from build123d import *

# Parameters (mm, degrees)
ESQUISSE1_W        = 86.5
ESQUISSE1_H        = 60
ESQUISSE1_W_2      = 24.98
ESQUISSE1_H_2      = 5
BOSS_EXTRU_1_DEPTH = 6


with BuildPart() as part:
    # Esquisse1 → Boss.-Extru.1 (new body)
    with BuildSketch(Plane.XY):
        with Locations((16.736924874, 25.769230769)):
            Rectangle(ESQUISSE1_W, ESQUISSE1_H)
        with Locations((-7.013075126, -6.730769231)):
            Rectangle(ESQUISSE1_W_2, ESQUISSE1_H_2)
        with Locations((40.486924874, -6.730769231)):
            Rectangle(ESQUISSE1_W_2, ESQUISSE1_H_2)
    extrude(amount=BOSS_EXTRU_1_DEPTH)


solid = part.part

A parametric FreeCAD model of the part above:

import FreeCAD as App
import Part
import Sketcher
from FreeCAD import Vector

doc = App.newDocument("Part")
params = doc.addObject("Spreadsheet::Sheet", "Params")
for row, (alias, value) in enumerate([
    ("sketch1_height", "60 mm"),
    ("sketch1_height2", "5 mm"),
    ("sketch1_width", "86.5 mm"),
    ("sketch1_width2", "7.01 mm"),
    ("sketch1_width3", "24.98 mm"),
    ("pad1_length", "6 mm"),
], start=1):
    params.set(f"A{row}", alias)
    params.set(f"B{row}", "=" + value)
    params.setAlias(f"B{row}", alias)

body = doc.addObject("PartDesign::Body", "Body")

# Sketch on XY plane
sketch1 = body.newObject("Sketcher::SketchObject", "Sketch")
sketch1.AttachmentSupport = (doc.getObject("XY_Plane"), [""])
sketch1.MapMode = "FlatFace"
sketch1.addGeometry([
    Part.LineSegment(Vector(-27, 56, 0), Vector(-27, -4, 0)),  # 0
    Part.LineSegment(Vector(-27, -4, 0), Vector(-20, -4, 0)),  # 1
    Part.LineSegment(Vector(-20, -4, 0), Vector(-20, -9, 0)),  # 2
    Part.LineSegment(Vector(-20, -9, 0), Vector(5, -9, 0)),  # 3
    Part.LineSegment(Vector(5, -9, 0), Vector(5, -4, 0)),  # 4
    Part.LineSegment(Vector(5, -4, 0), Vector(28, -4, 0)),  # 5
    Part.LineSegment(Vector(28, -4, 0), Vector(28, -9, 0)),  # 6
    Part.LineSegment(Vector(28, -9, 0), Vector(53, -9, 0)),  # 7
    Part.LineSegment(Vector(53, -9, 0), Vector(53, -4, 0)),  # 8
    Part.LineSegment(Vector(53, -4, 0), Vector(60, -4, 0)),  # 9
    Part.LineSegment(Vector(60, -4, 0), Vector(60, 56, 0)),  # 10
    Part.LineSegment(Vector(60, 56, 0), Vector(-27, 56, 0)),  # 11
], False)
sketch1.addConstraint([
    Sketcher.Constraint("Coincident", 0, 2, 1, 1),
    Sketcher.Constraint("Coincident", 1, 2, 2, 1),
    Sketcher.Constraint("Coincident", 2, 2, 3, 1),
    Sketcher.Constraint("Coincident", 3, 2, 4, 1),
    Sketcher.Constraint("Coincident", 4, 2, 5, 1),
    Sketcher.Constraint("Coincident", 5, 2, 6, 1),
    Sketcher.Constraint("Coincident", 6, 2, 7, 1),
    Sketcher.Constraint("Coincident", 7, 2, 8, 1),
    Sketcher.Constraint("Coincident", 8, 2, 9, 1),
    Sketcher.Constraint("Coincident", 9, 2, 10, 1),
    Sketcher.Constraint("Coincident", 10, 2, 11, 1),
    Sketcher.Constraint("Coincident", 11, 2, 0, 1),
    Sketcher.Constraint("Vertical", 0),
    Sketcher.Constraint("Horizontal", 1),
    Sketcher.Constraint("Vertical", 2),
    Sketcher.Constraint("Horizontal", 3),
    Sketcher.Constraint("Vertical", 4),
    Sketcher.Constraint("Horizontal", 5),
    Sketcher.Constraint("Vertical", 6),
    Sketcher.Constraint("Horizontal", 7),
    Sketcher.Constraint("Vertical", 8),
    Sketcher.Constraint("Horizontal", 9),
    Sketcher.Constraint("Vertical", 10),
    Sketcher.Constraint("Horizontal", 11),
    Sketcher.Constraint("Horizontal", 1, 2, 4, 2),
    Sketcher.Constraint("Horizontal", 3, 2, 6, 2),
    Sketcher.Constraint("Horizontal", 5, 2, 8, 2),
    Sketcher.Constraint("Equal", 3, 7),
    Sketcher.Constraint("Equal", 1, 9),
    Sketcher.Constraint("DistanceY", 0, 2, 0, 1, 60.0),
    Sketcher.Constraint("DistanceY", 2, 2, 2, 1, 5.0),
    Sketcher.Constraint("DistanceX", 11, 2, 11, 1, 86.5),
    Sketcher.Constraint("DistanceX", 1, 1, 1, 2, 7.01),
    Sketcher.Constraint("DistanceX", 3, 1, 3, 2, 24.98),
    Sketcher.Constraint("DistanceY", 0, 2, -1, 1, 4.230769),
    Sketcher.Constraint("DistanceX", 0, 2, -1, 1, 26.513075),
])
sketch1.setExpression("Constraints[29]", "Params.sketch1_height")
sketch1.setExpression("Constraints[30]", "Params.sketch1_height2")
sketch1.setExpression("Constraints[31]", "Params.sketch1_width")
sketch1.setExpression("Constraints[32]", "Params.sketch1_width2")
sketch1.setExpression("Constraints[33]", "Params.sketch1_width3")
pad1 = body.newObject("PartDesign::Pad", "Pad")
pad1.Profile = sketch1
pad1.setExpression("Length", "Params.pad1_length")

doc.recompute()
